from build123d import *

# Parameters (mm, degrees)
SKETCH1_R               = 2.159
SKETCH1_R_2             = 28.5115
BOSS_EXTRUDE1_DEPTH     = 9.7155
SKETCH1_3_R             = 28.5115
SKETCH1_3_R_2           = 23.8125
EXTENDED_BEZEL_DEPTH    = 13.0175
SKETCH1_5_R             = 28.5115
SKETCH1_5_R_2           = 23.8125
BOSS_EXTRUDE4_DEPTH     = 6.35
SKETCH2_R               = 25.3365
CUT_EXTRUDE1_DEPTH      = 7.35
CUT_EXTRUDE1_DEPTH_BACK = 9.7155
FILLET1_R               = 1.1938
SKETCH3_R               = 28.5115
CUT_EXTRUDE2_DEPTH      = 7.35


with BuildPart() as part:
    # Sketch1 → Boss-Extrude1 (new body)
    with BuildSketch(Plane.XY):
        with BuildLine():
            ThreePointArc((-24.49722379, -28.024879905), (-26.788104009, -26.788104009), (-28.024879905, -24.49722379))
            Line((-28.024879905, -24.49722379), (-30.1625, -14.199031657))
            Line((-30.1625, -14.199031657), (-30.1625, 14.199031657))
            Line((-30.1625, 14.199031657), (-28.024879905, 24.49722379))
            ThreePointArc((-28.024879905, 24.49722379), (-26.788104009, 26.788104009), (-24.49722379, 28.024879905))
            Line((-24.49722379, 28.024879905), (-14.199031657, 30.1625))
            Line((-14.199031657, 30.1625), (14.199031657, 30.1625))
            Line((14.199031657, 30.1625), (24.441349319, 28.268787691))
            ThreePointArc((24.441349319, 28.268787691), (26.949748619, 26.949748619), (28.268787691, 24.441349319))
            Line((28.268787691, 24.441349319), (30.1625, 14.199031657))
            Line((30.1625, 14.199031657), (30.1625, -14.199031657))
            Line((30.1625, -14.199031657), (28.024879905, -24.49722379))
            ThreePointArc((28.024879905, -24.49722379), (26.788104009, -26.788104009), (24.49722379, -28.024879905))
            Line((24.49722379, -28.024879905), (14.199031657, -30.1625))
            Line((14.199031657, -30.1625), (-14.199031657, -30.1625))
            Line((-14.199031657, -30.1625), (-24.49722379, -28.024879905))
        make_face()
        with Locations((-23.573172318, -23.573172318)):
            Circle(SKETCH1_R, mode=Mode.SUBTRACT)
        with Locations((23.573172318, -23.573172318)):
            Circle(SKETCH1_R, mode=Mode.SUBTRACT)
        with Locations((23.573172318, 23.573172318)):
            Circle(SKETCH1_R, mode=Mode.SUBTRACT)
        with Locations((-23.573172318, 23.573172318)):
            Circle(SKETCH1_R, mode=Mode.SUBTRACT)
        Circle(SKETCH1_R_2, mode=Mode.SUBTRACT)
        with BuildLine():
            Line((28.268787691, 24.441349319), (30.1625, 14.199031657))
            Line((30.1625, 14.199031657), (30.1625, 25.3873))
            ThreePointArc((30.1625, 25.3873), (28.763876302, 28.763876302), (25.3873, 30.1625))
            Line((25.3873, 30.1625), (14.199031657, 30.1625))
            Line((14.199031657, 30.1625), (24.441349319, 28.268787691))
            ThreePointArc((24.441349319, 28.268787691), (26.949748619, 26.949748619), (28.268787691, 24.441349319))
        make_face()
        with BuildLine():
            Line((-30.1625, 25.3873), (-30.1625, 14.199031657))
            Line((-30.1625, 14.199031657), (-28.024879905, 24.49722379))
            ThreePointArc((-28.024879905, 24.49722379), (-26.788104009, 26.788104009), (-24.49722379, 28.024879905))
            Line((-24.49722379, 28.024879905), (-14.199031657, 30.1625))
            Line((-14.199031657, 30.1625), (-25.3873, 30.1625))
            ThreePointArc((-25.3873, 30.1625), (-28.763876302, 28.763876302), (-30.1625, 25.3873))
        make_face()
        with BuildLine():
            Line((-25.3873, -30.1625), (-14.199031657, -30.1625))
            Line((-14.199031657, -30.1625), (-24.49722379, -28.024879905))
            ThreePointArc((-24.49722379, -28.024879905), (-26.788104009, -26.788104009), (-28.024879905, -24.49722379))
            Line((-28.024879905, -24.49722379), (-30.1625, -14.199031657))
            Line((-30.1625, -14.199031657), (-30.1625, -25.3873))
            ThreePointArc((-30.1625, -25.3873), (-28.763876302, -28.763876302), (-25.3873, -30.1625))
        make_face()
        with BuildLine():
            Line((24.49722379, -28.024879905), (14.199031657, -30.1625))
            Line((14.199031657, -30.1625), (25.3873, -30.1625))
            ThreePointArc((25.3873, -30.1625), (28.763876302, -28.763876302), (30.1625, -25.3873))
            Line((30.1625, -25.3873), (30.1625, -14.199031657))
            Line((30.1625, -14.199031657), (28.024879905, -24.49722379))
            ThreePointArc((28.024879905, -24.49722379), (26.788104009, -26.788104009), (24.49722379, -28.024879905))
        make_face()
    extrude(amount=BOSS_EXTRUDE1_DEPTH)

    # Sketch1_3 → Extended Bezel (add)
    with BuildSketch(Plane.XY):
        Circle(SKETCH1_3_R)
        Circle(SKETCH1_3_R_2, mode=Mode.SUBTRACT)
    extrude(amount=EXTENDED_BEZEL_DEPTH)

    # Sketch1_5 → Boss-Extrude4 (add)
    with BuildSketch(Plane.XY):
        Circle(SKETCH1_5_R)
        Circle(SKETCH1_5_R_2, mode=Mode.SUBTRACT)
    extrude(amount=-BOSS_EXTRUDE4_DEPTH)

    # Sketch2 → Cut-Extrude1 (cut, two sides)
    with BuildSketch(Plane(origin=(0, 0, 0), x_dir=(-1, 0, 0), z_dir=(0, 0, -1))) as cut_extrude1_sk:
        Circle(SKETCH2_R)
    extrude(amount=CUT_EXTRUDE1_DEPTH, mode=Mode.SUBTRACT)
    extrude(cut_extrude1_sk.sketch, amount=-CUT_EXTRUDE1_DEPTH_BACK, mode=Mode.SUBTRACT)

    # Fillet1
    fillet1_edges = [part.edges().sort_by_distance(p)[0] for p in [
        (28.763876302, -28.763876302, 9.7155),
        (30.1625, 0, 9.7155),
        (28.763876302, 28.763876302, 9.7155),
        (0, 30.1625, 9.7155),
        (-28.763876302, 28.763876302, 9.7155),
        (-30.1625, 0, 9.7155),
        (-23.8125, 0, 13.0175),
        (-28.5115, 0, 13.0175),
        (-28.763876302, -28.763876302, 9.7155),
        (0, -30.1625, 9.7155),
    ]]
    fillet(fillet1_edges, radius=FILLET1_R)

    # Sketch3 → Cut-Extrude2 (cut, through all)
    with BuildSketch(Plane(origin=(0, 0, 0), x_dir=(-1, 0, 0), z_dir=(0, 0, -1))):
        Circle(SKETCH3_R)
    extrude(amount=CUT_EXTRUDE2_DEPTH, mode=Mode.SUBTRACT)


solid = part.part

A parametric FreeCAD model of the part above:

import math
import FreeCAD as App
import Part
import Sketcher

V = App.Vector
Q = App.Units.Quantity


def edges_at(feature, points):
    """Names of the edges that pass closest to the given points."""
    edges = feature.Shape.Edges
    near = lambda p: min(range(len(edges)), key=lambda i: edges[i].distToShape(Part.Vertex(*p))[0])
    return sorted({f"Edge{near(p) + 1}" for p in points})

doc = App.newDocument("Part")
body = doc.addObject("PartDesign::Body", "Body")

sketch1 = body.newObject("Sketcher::SketchObject", "Sketch")
sketch1.AttachmentSupport = (doc.getObject("XY_Plane"), [""])
sketch1.MapMode = "FlatFace"
sketch1.addGeometry([
    Part.LineSegment(V(-30.2, 25.4, 0), V(-30.2, -25.4, 0)),
    Part.ArcOfCircle(Part.Circle(V(-25.4, -25.4, 0), V(0, 0, 1), 4.8), math.radians(180), math.radians(270)),
    Part.LineSegment(V(-25.4, -30.2, 0), V(25.4, -30.2, 0)),
    Part.ArcOfCircle(Part.Circle(V(25.4, -25.4, 0), V(0, 0, 1), 4.8), math.radians(-90), math.radians(0)),
    Part.LineSegment(V(30.2, -25.4, 0), V(30.2, 25.4, 0)),
    Part.ArcOfCircle(Part.Circle(V(25.4, 25.4, 0), V(0, 0, 1), 4.8), math.radians(0), math.radians(90)),
    Part.LineSegment(V(25.4, 30.2, 0), V(-25.4, 30.2, 0)),
    Part.ArcOfCircle(Part.Circle(V(-25.4, 25.4, 0), V(0, 0, 1), 4.8), math.radians(90), math.radians(180)),
    Part.Circle(V(23.6, -23.6, 0), V(0, 0, 1), 2.2),
    Part.Circle(V(-23.6, -23.6, 0), V(0, 0, 1), 2.2),
    Part.Circle(V(23.6, 23.6, 0), V(0, 0, 1), 2.2),
    Part.Circle(V(0, 0, 0), V(0, 0, 1), 28.5),
    Part.Circle(V(-23.6, 23.6, 0), V(0, 0, 1), 2.2),
], False)
sketch1.addConstraint([
    Sketcher.Constraint("Tangent", 0, 2, 1, 1),
    Sketcher.Constraint("Tangent", 1, 2, 2, 1),
    Sketcher.Constraint("Tangent", 2, 2, 3, 1),
    Sketcher.Constraint("Tangent", 3, 2, 4, 1),
    Sketcher.Constraint("Tangent", 4, 2, 5, 1),
    Sketcher.Constraint("Tangent", 5, 2, 6, 1),
    Sketcher.Constraint("Tangent", 6, 2, 7, 1),
    Sketcher.Constraint("Tangent", 7, 2, 0, 1),
    Sketcher.Constraint("Vertical", 0),
    Sketcher.Constraint("Horizontal", 2),
    Sketcher.Constraint("Vertical", 4),
    Sketcher.Constraint("Horizontal", 6),
    Sketcher.Constraint("Coincident", 11, 3, -1, 1),
    Sketcher.Constraint("Equal", 1, 3),
    Sketcher.Constraint("Equal", 3, 5),
    Sketcher.Constraint("Equal", 5, 7),
    Sketcher.Constraint("Equal", 8, 9),
    Sketcher.Constraint("Equal", 9, 10),
    Sketcher.Constraint("Equal", 10, 12),
    Sketcher.Constraint("Symmetric", 1, 3, 5, 3, -1, 1),
    Sketcher.Constraint("Symmetric", 9, 3, 10, 3, -1, 1),
    Sketcher.Constraint("Symmetric", 8, 3, 12, 3, -1, 1),
    Sketcher.Constraint("Symmetric", 8, 3, 9, 3, -2),
    Sketcher.Constraint("Equal", 6, 0),
    Sketcher.Constraint("Diameter", 8, Q("0.17 in")),
    Sketcher.Constraint("Diameter", 11, Q("2.245 in")),
    Sketcher.Constraint("Radius", 1, Q("0.188 in")),
    Sketcher.Constraint("DistanceX", 2, 1, 2, 2, Q("1.999 in")),
    Sketcher.Constraint("DistanceX", -1, 1, 8, 3, Q("23.573172 mm")),
    Sketcher.Constraint("DistanceY", 8, 3, -1, 1, Q("23.573172 mm")),
])
pad1 = body.newObject("PartDesign::Pad", "Pad")
pad1.Profile = sketch1
pad1.Length = Q("0.3825 in")

sketch2 = body.newObject("Sketcher::SketchObject", "Sketch001")
sketch2.AttachmentSupport = (doc.getObject("XY_Plane"), [""])
sketch2.MapMode = "FlatFace"
sketch2.addGeometry([
    Part.Circle(V(0, 0, 0), V(0, 0, 1), 29),
    Part.Circle(V(0, 0, 0), V(0, 0, 1), 24),
], False)
sketch2.addConstraint([
    Sketcher.Constraint("Coincident", 0, 3, -1, 1),
    Sketcher.Constraint("Coincident", 1, 3, -1, 1),
    Sketcher.Constraint("Diameter", 0, Q("2.245 in")),
    Sketcher.Constraint("Diameter", 1, Q("1.875 in")),
])
pad2 = body.newObject("PartDesign::Pad", "Pad001")
pad2.Profile = sketch2
pad2.Length = Q("0.5125 in")

sketch3 = body.newObject("Sketcher::SketchObject", "Sketch002")
sketch3.AttachmentSupport = (doc.getObject("XY_Plane"), [""])
sketch3.MapMode = "FlatFace"
sketch3.addGeometry([
    Part.Circle(V(0, 0, 0), V(0, 0, 1), 29),
    Part.Circle(V(0, 0, 0), V(0, 0, 1), 24),
], False)
sketch3.addConstraint([
    Sketcher.Constraint("Coincident", 0, 3, -1, 1),
    Sketcher.Constraint("Coincident", 1, 3, -1, 1),
    Sketcher.Constraint("Diameter", 0, Q("2.245 in")),
    Sketcher.Constraint("Diameter", 1, Q("1.875 in")),
])
pad3 = body.newObject("PartDesign::Pad", "Pad002")
pad3.Profile = sketch3
pad3.Length = Q("0.25 in")
pad3.Reversed = True

sketch4 = body.newObject("Sketcher::SketchObject", "Sketch003")
sketch4.AttachmentSupport = (doc.getObject("XY_Plane"), [""])
sketch4.MapMode = "FlatFace"
sketch4.addGeometry(Part.Circle(V(0, 0, 0), V(0, 0, 1), 25), False)
sketch4.addConstraint([
    Sketcher.Constraint("Coincident", 0, 3, -1, 1),
    Sketcher.Constraint("Diameter", 0, Q("1.995 in")),
])
pocket1 = body.newObject("PartDesign::Pocket", "Pocket")
pocket1.Profile = sketch4
pocket1.Type = "TwoLengths"
pocket1.Length = 7.35
pocket1.Length2 = Q("0.3825 in")
doc.recompute()

fillet = body.newObject("PartDesign::Fillet", "Fillet")
fillet.Base = (pocket1, edges_at(pocket1, [
    (28.764, -28.764, 9.716),
    (30.163, 0, 9.716),
    (28.764, 28.764, 9.716),
    (0, 30.163, 9.716),
    (-28.764, 28.764, 9.716),
    (-30.163, 0, 9.716),
    (-23.812, 0, 13.018),
    (-28.512, 0, 13.018),
    (-28.764, -28.764, 9.716),
    (0, -30.163, 9.716),
]))
fillet.Radius = Q("0.047 in")

sketch5 = body.newObject("Sketcher::SketchObject", "Sketch004")
sketch5.AttachmentSupport = (doc.getObject("XY_Plane"), [""])
sketch5.MapMode = "FlatFace"
sketch5.addGeometry(Part.Circle(V(0, 0, 0), V(0, 0, 1), 29), False)
sketch5.addConstraint([
    Sketcher.Constraint("Coincident", 0, 3, -1, 1),
    Sketcher.Constraint("Diameter", 0, Q("2.245 in")),
])
pocket2 = body.newObject("PartDesign::Pocket", "Pocket001")
pocket2.Profile = sketch5
pocket2.Type = "ThroughAll"

doc.recompute()
